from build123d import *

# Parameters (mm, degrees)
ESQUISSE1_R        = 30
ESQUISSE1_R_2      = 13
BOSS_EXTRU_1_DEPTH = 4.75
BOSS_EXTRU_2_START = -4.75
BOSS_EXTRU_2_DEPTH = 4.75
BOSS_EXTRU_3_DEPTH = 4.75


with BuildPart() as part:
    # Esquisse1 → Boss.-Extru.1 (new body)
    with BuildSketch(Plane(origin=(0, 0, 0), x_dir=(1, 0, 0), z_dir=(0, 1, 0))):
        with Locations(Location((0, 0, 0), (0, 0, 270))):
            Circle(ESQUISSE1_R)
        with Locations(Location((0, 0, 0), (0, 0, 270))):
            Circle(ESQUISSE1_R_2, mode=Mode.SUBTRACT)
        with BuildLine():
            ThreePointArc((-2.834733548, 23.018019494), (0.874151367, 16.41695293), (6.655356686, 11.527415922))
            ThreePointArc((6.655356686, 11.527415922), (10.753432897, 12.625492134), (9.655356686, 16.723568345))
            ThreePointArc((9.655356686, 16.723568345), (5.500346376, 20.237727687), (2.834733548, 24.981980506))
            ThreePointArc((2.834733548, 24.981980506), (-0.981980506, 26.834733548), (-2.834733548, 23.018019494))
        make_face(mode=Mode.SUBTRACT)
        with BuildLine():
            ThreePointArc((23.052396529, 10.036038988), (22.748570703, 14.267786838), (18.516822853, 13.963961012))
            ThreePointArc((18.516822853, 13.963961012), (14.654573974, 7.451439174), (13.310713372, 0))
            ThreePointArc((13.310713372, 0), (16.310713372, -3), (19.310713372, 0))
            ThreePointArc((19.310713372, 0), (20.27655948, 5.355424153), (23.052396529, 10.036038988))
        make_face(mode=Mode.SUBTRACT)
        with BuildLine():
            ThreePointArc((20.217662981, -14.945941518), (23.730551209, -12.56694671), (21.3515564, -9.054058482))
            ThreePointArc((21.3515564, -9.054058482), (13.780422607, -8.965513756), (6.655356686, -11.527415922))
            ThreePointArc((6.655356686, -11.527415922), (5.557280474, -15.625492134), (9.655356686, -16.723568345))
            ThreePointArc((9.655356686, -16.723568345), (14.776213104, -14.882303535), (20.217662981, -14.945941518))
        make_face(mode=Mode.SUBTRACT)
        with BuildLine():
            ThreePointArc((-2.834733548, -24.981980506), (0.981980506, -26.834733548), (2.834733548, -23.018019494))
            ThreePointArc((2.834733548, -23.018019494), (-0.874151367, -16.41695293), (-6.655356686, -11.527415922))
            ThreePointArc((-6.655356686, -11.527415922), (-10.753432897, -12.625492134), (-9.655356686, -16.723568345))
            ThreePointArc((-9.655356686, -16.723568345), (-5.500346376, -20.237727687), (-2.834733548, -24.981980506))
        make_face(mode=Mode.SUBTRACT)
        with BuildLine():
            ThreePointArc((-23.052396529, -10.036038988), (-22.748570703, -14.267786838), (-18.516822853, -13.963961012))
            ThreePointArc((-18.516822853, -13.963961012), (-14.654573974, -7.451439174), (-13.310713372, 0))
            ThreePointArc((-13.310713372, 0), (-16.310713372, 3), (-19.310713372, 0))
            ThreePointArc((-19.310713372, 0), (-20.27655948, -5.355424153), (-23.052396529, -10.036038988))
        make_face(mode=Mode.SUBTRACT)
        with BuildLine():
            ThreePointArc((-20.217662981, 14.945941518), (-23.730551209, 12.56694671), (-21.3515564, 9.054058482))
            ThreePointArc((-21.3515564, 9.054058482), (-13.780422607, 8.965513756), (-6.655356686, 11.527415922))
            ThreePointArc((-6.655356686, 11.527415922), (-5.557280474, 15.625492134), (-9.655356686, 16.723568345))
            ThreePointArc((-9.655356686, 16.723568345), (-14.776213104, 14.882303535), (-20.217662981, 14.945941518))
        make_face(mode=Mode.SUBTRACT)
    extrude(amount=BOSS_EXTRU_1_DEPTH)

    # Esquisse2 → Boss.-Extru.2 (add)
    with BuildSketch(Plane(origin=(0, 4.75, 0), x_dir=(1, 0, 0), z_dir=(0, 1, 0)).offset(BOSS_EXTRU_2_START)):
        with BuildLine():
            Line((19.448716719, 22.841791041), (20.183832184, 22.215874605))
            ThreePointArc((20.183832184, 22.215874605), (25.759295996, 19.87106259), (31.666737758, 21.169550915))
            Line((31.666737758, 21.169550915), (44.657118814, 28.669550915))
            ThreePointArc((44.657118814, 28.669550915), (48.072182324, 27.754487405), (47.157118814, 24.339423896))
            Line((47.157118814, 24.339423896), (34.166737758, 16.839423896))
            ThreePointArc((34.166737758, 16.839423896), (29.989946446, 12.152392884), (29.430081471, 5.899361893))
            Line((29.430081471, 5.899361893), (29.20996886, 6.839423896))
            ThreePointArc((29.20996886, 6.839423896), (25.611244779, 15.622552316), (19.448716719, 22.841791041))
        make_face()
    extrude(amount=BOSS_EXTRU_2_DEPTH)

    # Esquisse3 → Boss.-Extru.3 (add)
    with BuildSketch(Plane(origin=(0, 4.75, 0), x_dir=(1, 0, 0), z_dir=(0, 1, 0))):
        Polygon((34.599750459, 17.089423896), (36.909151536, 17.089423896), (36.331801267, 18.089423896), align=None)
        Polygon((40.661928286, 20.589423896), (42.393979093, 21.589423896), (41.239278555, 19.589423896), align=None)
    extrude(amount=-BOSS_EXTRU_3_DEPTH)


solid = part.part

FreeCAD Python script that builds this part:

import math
import FreeCAD as App
import Part
import Sketcher

V = App.Vector
Q = App.Units.Quantity

doc = App.newDocument("Part")
body = doc.addObject("PartDesign::Body", "Body")

# Sketch on XZ plane
sketch1 = doc.addObject("Sketcher::SketchObject", "Sketch")
body.addObject(sketch1)
sketch1.AttachmentSupport = (doc.XZ_Plane, [""])
sketch1.MapMode = "FlatFace"
sketch1.addGeometry([
    Part.Circle(V(0, 0, 0), V(0, 0, 1), 30),  # 0
    Part.ArcOfCircle(Part.Circle(V(-20.8, -12, 0), V(0, 0, 1), 3), math.radians(101), math.radians(281)),  # 1
    Part.ArcOfCircle(Part.Circle(V(-17.3, -30, 0), V(0, 0, 1), 15.3), math.radians(60), math.radians(101)),  # 2
    Part.ArcOfCircle(Part.Circle(V(-8.2, -14.1, 0), V(0, 0, 1), 3), math.radians(-120), math.radians(60)),  # 3
    Part.ArcOfCircle(Part.Circle(V(-17.3, -30, 0), V(0, 0, 1), 21.3), math.radians(60), math.radians(101)),  # 4
    Part.ArcOfCircle(Part.Circle(V(-20.8, 12, 0), V(0, 0, 1), 3), math.radians(41), math.radians(221)),  # 5
    Part.ArcOfCircle(Part.Circle(V(-34.6, 0, 0), V(0, 0, 1), 15.3), math.radians(0), math.radians(41)),  # 6
    Part.ArcOfCircle(Part.Circle(V(-16.3, 0, 0), V(0, 0, 1), 3), math.radians(180), math.radians(360)),  # 7
    Part.ArcOfCircle(Part.Circle(V(-34.6, 0, 0), V(0, 0, 1), 21.3), math.radians(0), math.radians(41)),  # 8
    Part.Circle(V(0, 0, 0), V(0, 0, 1), 13),  # 9
    Part.ArcOfCircle(Part.Circle(V(0, 24, 0), V(0, 0, 1), 3), math.radians(-19), math.radians(161)),  # 10
    Part.ArcOfCircle(Part.Circle(V(-17.3, 30, 0), V(0, 0, 1), 15.3), math.radians(-60), math.radians(-19)),  # 11
    Part.ArcOfCircle(Part.Circle(V(-8.2, 14.1, 0), V(0, 0, 1), 3), math.radians(120), math.radians(300)),  # 12
    Part.ArcOfCircle(Part.Circle(V(-17.3, 30, 0), V(0, 0, 1), 21.3), math.radians(-60), math.radians(-19)),  # 13
    Part.ArcOfCircle(Part.Circle(V(17.3, -30, 0), V(0, 0, 1), 21.3), math.radians(120), math.radians(161)),  # 14
    Part.ArcOfCircle(Part.Circle(V(0, -24, 0), V(0, 0, 1), 3), math.radians(161), math.radians(341)),  # 15
    Part.ArcOfCircle(Part.Circle(V(17.3, -30, 0), V(0, 0, 1), 15.3), math.radians(120), math.radians(161)),  # 16
    Part.ArcOfCircle(Part.Circle(V(8.2, -14.1, 0), V(0, 0, 1), 3), math.radians(-60), math.radians(120)),  # 17
    Part.ArcOfCircle(Part.Circle(V(20.8, -12, 0), V(0, 0, 1), 3), math.radians(-139), math.radians(41)),  # 18
    Part.ArcOfCircle(Part.Circle(V(34.6, 0, 0), V(0, 0, 1), 15.3), math.radians(180), math.radians(221)),  # 19
    Part.ArcOfCircle(Part.Circle(V(16.3, 0, 0), V(0, 0, 1), 3), math.radians(0), math.radians(180)),  # 20
    Part.ArcOfCircle(Part.Circle(V(34.6, 0, 0), V(0, 0, 1), 21.3), math.radians(180), math.radians(221)),  # 21
    Part.ArcOfCircle(Part.Circle(V(20.8, 12, 0), V(0, 0, 1), 3), math.radians(-79), math.radians(101)),  # 22
    Part.ArcOfCircle(Part.Circle(V(17.3, 30, 0), V(0, 0, 1), 15.3), math.radians(-120), math.radians(-79)),  # 23
    Part.ArcOfCircle(Part.Circle(V(8.2, 14.1, 0), V(0, 0, 1), 3), math.radians(60), math.radians(240)),  # 24
    Part.ArcOfCircle(Part.Circle(V(17.3, 30, 0), V(0, 0, 1), 21.3), math.radians(-120), math.radians(-79)),  # 25
], False)
sketch1.addConstraint([
    Sketcher.Constraint("Tangent", 1, 2, 2, 2),
    Sketcher.Constraint("Tangent", 2, 1, 3, 1),
    Sketcher.Constraint("Tangent", 3, 2, 4, 1),
    Sketcher.Constraint("Tangent", 4, 2, 1, 1),
    Sketcher.Constraint("Tangent", 5, 2, 6, 2),
    Sketcher.Constraint("Tangent", 6, 1, 7, 1),
    Sketcher.Constraint("Tangent", 7, 2, 8, 1),
    Sketcher.Constraint("Tangent", 8, 2, 5, 1),
    Sketcher.Constraint("Tangent", 10, 2, 11, 2),
    Sketcher.Constraint("Tangent", 11, 1, 12, 1),
    Sketcher.Constraint("Tangent", 12, 2, 13, 1),
    Sketcher.Constraint("Tangent", 13, 2, 10, 1),
    Sketcher.Constraint("Tangent", 14, 2, 15, 1),
    Sketcher.Constraint("Tangent", 15, 2, 16, 2),
    Sketcher.Constraint("Tangent", 16, 1, 17, 1),
    Sketcher.Constraint("Tangent", 17, 2, 14, 1),
    Sketcher.Constraint("Tangent", 18, 2, 19, 2),
    Sketcher.Constraint("Tangent", 19, 1, 20, 1),
    Sketcher.Constraint("Tangent", 20, 2, 21, 1),
    Sketcher.Constraint("Tangent", 21, 2, 18, 1),
    Sketcher.Constraint("Tangent", 22, 2, 23, 2),
    Sketcher.Constraint("Tangent", 23, 1, 24, 1),
    Sketcher.Constraint("Tangent", 24, 2, 25, 1),
    Sketcher.Constraint("Tangent", 25, 2, 22, 1),
    Sketcher.Constraint("Coincident", 0, 3, -1, 1),
    Sketcher.Constraint("Coincident", 9, 3, -1, 1),
    Sketcher.Constraint("Coincident", 4, 3, 2, 3),
    Sketcher.Constraint("Coincident", 8, 3, 6, 3),
    Sketcher.Constraint("Coincident", 13, 3, 11, 3),
    Sketcher.Constraint("Coincident", 16, 3, 14, 3),
    Sketcher.Constraint("Coincident", 21, 3, 19, 3),
    Sketcher.Constraint("Coincident", 25, 3, 23, 3),
    Sketcher.Constraint("Equal", 3, 5),
    Sketcher.Constraint("Equal", 2, 6),
    Sketcher.Constraint("Equal", 7, 10),
    Sketcher.Constraint("Equal", 6, 11),
    Sketcher.Constraint("Equal", 13, 14),
    Sketcher.Constraint("Equal", 12, 15),
    Sketcher.Constraint("Equal", 17, 18),
    Sketcher.Constraint("Equal", 16, 19),
    Sketcher.Constraint("Equal", 20, 22),
    Sketcher.Constraint("Equal", 19, 23),
    Sketcher.Constraint("Symmetric", 11, 3, 14, 3, -1, 1),
    Sketcher.Constraint("Symmetric", 5, 3, 18, 3, -1, 1),
    Sketcher.Constraint("Symmetric", 7, 3, 20, 3, -1, 1),
    Sketcher.Constraint("Symmetric", 1, 3, 22, 3, -1, 1),
    Sketcher.Constraint("Symmetric", 3, 3, 24, 3, -1, 1),
    Sketcher.Constraint("Symmetric", 2, 3, 14, 3, -2),
    Sketcher.Constraint("Symmetric", 1, 3, 18, 3, -2),
    Sketcher.Constraint("Symmetric", 10, 3, 15, 3, -1),
    Sketcher.Constraint("PointOnObject", 6, 3, -1),
    Sketcher.Constraint("PointOnObject", 7, 3, -1),
    Sketcher.Constraint("Horizontal", 3, 3, 17, 3),
    Sketcher.Constraint("Horizontal", 12, 3, 24, 3),
    Sketcher.Constraint("Diameter", 0, 60.0),
    Sketcher.Constraint("Diameter", 9, 26.0),
    Sketcher.Constraint("Radius", 1, 3.0),
    Sketcher.Constraint("DistanceY", 1, 3, -1, 1, 12.0),
    Sketcher.Constraint("DistanceY", 2, 3, -1, 1, 30.0),
    Sketcher.Constraint("DistanceY", -1, 1, 10, 3, 24.0),
    Sketcher.Constraint("DistanceX", 2, 1, 3, 2, 3.0),
    Sketcher.Constraint("Radius", 2, 15.330303),
])
pad1 = doc.addObject("PartDesign::Pad", "Pad")
body.addObject(pad1)
pad1.Profile = sketch1
pad1.Length = 4.75
pad1.Reversed = True

# Sketch on XZ plane
sketch2 = doc.addObject("Sketcher::SketchObject", "Sketch001")
body.addObject(sketch2)
sketch2.AttachmentSupport = (doc.XZ_Plane, [""])
sketch2.MapMode = "FlatFace"
sketch2.addGeometry([
    Part.LineSegment(V(20.2, -22.2, 0), V(19.4, -22.8, 0)),  # 0
    Part.ArcOfCircle(Part.Circle(V(0, 0, 0), V(0, 0, 1), 30), math.radians(-50), math.radians(-13)),  # 1
    Part.LineSegment(V(29.2, -6.8, 0), V(29.4, -5.9, 0)),  # 2
    Part.ArcOfCircle(Part.Circle(V(39.2, -8.2, 0), V(0, 0, 1), 10), math.radians(167), math.radians(240)),  # 3
    Part.LineSegment(V(34.2, -16.8, 0), V(47.2, -24.3, 0)),  # 4
    Part.ArcOfCircle(Part.Circle(V(45.9, -26.5, 0), V(0, 0, 1), 2.5), math.radians(-120), math.radians(60)),  # 5
    Part.LineSegment(V(44.7, -28.7, 0), V(31.7, -21.2, 0)),  # 6
    Part.ArcOfCircle(Part.Circle(V(26.7, -29.8, 0), V(0, 0, 1), 10), math.radians(60), math.radians(130)),  # 7
], False)
sketch2.addConstraint([
    Sketcher.Constraint("Tangent", 0, 2, 1, 1),
    Sketcher.Constraint("Tangent", 1, 2, 2, 1),
    Sketcher.Constraint("Tangent", 2, 2, 3, 1),
    Sketcher.Constraint("Tangent", 3, 2, 4, 1),
    Sketcher.Constraint("Tangent", 4, 2, 5, 2),
    Sketcher.Constraint("Tangent", 5, 1, 6, 1),
    Sketcher.Constraint("Tangent", 6, 2, 7, 1),
    Sketcher.Constraint("Tangent", 7, 2, 0, 1),
    Sketcher.Constraint("Coincident", 1, 3, -1, 1),
    Sketcher.Constraint("Equal", 3, 7),
    Sketcher.Constraint("Parallel", 4, 6),
    Sketcher.Constraint("Equal", 0, 2),
    Sketcher.Constraint("Equal", 4, 6),
    Sketcher.Constraint("Radius", 1, 30.0),
    Sketcher.Constraint("Radius", 3, 10.0),
    Sketcher.Constraint("Radius", 5, 2.5),
    Sketcher.Constraint("Angle", 4, Q("-30 deg")),
    Sketcher.Constraint("Distance", 4, 15.0),
    Sketcher.Constraint("DistanceY", 3, 2, 1, 2, 10.0),
])
pad2 = doc.addObject("PartDesign::Pad", "Pad001")
body.addObject(pad2)
pad2.Profile = sketch2
pad2.Length = 4.75
pad2.Reversed = True

# Sketch on XZ plane
sketch3 = doc.addObject("Sketcher::SketchObject", "Sketch002")
body.addObject(sketch3)
sketch3.AttachmentSupport = (doc.XZ_Plane, [""])
sketch3.MapMode = "FlatFace"
sketch3.AttachmentOffset = App.Placement(V(0, 0, -4.75), App.Rotation())
sketch3.addGeometry([
    Part.LineSegment(V(34.6, -17.1, 0), V(36.9, -17.1, 0)),  # 0
    Part.LineSegment(V(36.9, -17.1, 0), V(36.3, -18.1, 0)),  # 1
    Part.LineSegment(V(36.3, -18.1, 0), V(34.6, -17.1, 0)),  # 2
    Part.LineSegment(V(42.4, -21.6, 0), V(40.7, -20.6, 0)),  # 3
    Part.LineSegment(V(40.7, -20.6, 0), V(41.2, -19.6, 0)),  # 4
    Part.LineSegment(V(41.2, -19.6, 0), V(42.4, -21.6, 0)),  # 5
], False)
sketch3.addConstraint([
    Sketcher.Constraint("Coincident", 0, 2, 1, 1),
    Sketcher.Constraint("Coincident", 1, 2, 2, 1),
    Sketcher.Constraint("Coincident", 2, 2, 0, 1),
    Sketcher.Constraint("Coincident", 3, 2, 4, 1),
    Sketcher.Constraint("Coincident", 4, 2, 5, 1),
    Sketcher.Constraint("Coincident", 5, 2, 3, 1),
    Sketcher.Constraint("Horizontal", 0),
    Sketcher.Constraint("Perpendicular", 1, 2),
    Sketcher.Constraint("Parallel", 2, 3),
    Sketcher.Constraint("Perpendicular", 3, 4),
    Sketcher.Constraint("Equal", 2, 3),
    Sketcher.Constraint("Equal", 1, 4),
    Sketcher.Constraint("Angle", 1, Q("-120 deg")),
    Sketcher.Constraint("Distance", 2, 2.0),
    Sketcher.Constraint("DistanceY", 3, 2, 1, 2, 2.5),
    Sketcher.Constraint("DistanceX", -1, 1, 1, 2, 36.331801),
    Sketcher.Constraint("DistanceX", -1, 1, 3, 2, 40.661928),
    Sketcher.Constraint("DistanceY", 0, 2, -1, 1, 17.089424),
])
pad3 = doc.addObject("PartDesign::Pad", "Pad002")
body.addObject(pad3)
pad3.Profile = sketch3
pad3.Length = 4.75

doc.recompute()
